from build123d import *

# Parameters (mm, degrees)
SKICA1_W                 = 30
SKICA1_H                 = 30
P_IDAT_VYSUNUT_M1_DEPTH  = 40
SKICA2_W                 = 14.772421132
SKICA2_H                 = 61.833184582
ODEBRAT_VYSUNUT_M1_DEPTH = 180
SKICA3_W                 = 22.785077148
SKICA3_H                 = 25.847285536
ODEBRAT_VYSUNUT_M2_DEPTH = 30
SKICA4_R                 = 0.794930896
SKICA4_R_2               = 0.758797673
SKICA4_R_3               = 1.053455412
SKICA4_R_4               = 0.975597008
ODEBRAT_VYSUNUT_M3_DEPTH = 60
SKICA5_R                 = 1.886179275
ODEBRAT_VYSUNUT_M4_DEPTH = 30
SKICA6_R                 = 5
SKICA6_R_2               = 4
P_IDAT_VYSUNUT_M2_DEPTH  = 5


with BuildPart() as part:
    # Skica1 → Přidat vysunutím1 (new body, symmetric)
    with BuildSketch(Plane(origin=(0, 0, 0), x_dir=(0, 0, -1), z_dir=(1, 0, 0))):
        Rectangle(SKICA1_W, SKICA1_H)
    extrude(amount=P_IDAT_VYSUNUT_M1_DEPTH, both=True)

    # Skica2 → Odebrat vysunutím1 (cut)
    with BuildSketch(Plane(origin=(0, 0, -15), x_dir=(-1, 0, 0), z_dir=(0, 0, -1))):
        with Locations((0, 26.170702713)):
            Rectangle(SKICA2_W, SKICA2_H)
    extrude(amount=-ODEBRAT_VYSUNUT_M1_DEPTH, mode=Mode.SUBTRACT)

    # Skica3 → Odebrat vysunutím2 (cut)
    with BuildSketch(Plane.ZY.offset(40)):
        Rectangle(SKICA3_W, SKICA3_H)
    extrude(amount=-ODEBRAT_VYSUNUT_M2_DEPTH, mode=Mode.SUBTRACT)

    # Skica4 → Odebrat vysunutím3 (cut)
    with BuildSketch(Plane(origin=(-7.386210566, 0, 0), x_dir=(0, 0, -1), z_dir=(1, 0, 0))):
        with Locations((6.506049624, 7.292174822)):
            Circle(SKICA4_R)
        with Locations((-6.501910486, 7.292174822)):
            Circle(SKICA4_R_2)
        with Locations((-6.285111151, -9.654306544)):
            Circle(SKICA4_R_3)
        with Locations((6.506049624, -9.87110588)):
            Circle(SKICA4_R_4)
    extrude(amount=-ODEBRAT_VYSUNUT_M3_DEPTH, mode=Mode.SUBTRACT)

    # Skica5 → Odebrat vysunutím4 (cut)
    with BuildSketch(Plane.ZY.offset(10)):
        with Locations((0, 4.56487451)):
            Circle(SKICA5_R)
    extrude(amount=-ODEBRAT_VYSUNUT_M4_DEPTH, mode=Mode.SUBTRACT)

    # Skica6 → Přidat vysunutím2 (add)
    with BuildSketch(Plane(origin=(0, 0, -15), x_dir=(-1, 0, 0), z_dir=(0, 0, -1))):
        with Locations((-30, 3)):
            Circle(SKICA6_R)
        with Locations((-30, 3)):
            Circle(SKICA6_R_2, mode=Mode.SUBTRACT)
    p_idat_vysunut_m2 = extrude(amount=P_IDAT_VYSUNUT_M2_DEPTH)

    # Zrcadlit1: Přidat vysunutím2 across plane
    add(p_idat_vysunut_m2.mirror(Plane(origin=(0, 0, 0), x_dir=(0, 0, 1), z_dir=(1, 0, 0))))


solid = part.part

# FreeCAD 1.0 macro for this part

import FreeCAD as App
import Part
import Sketcher

V = App.Vector
Q = App.Units.Quantity

doc = App.newDocument("Part")
body = doc.addObject("PartDesign::Body", "Body")

# Sketch on YZ plane
sketch1 = doc.addObject("Sketcher::SketchObject", "Sketch")
body.addObject(sketch1)
sketch1.AttachmentSupport = (doc.YZ_Plane, [""])
sketch1.MapMode = "FlatFace"
sketch1.addGeometry([
    Part.LineSegment(V(15, 15, 0), V(-15, 15, 0)),
    Part.LineSegment(V(-15, 15, 0), V(-15, -15, 0)),
    Part.LineSegment(V(-15, -15, 0), V(15, -15, 0)),
    Part.LineSegment(V(15, -15, 0), V(15, 15, 0)),
], False)
sketch1.addConstraint([
    Sketcher.Constraint("Coincident", 0, 2, 1, 1),
    Sketcher.Constraint("Coincident", 1, 2, 2, 1),
    Sketcher.Constraint("Coincident", 2, 2, 3, 1),
    Sketcher.Constraint("Coincident", 3, 2, 0, 1),
    Sketcher.Constraint("Horizontal", 0),
    Sketcher.Constraint("Vertical", 1),
    Sketcher.Constraint("Horizontal", 2),
    Sketcher.Constraint("Vertical", 3),
    Sketcher.Constraint("Symmetric", 0, 2, 2, 2, -1, 1),
    Sketcher.Constraint("Equal", 2, 1),
    Sketcher.Constraint("DistanceX", 0, 2, 0, 1, Q("30 mm")),
])
pad1 = doc.addObject("PartDesign::Pad", "Pad")
body.addObject(pad1)
pad1.Profile = sketch1
pad1.Length = 80
pad1.Midplane = True

# Sketch on XY plane
sketch2 = doc.addObject("Sketcher::SketchObject", "Sketch001")
body.addObject(sketch2)
sketch2.AttachmentSupport = (doc.XY_Plane, [""])
sketch2.MapMode = "FlatFace"
sketch2.AttachmentOffset = App.Placement(V(0, 0, -15), App.Rotation())
sketch2.addGeometry([
    Part.LineSegment(V(7.386211, 57.087295, 0), V(7.386211, -4.74589, 0)),
    Part.LineSegment(V(7.386211, -4.74589, 0), V(-7.386211, -4.74589, 0)),
    Part.LineSegment(V(-7.386211, -4.74589, 0), V(-7.386211, 57.087295, 0)),
    Part.LineSegment(V(-7.386211, 57.087295, 0), V(7.386211, 57.087295, 0)),
], False)
sketch2.addConstraint([
    Sketcher.Constraint("Coincident", 0, 2, 1, 1),
    Sketcher.Constraint("Coincident", 1, 2, 2, 1),
    Sketcher.Constraint("Coincident", 2, 2, 3, 1),
    Sketcher.Constraint("Coincident", 3, 2, 0, 1),
    Sketcher.Constraint("Vertical", 0),
    Sketcher.Constraint("Horizontal", 1),
    Sketcher.Constraint("Vertical", 2),
    Sketcher.Constraint("Horizontal", 3),
    Sketcher.Constraint("DistanceX", 1, 2, 1, 1, Q("14.772421 mm")),
    Sketcher.Constraint("DistanceY", 0, 2, 0, 1, Q("61.833185 mm")),
    Sketcher.Constraint("DistanceX", -1, 1, 0, 2, Q("7.386211 mm")),
    Sketcher.Constraint("DistanceY", 0, 2, -1, 1, Q("4.74589 mm")),
])
pocket1 = doc.addObject("PartDesign::Pocket", "Pocket")
body.addObject(pocket1)
pocket1.Profile = sketch2
pocket1.Length = 180
pocket1.Reversed = True

# Sketch on YZ plane
sketch3 = doc.addObject("Sketcher::SketchObject", "Sketch002")
body.addObject(sketch3)
sketch3.AttachmentSupport = (doc.YZ_Plane, [""])
sketch3.MapMode = "FlatFace"
sketch3.AttachmentOffset = App.Placement(V(0, 0, -40), App.Rotation())
sketch3.addGeometry([
    Part.LineSegment(V(12.923643, -11.392539, 0), V(-12.923643, -11.392539, 0)),
    Part.LineSegment(V(-12.923643, -11.392539, 0), V(-12.923643, 11.392539, 0)),
    Part.LineSegment(V(-12.923643, 11.392539, 0), V(12.923643, 11.392539, 0)),
    Part.LineSegment(V(12.923643, 11.392539, 0), V(12.923643, -11.392539, 0)),
], False)
sketch3.addConstraint([
    Sketcher.Constraint("Coincident", 0, 2, 1, 1),
    Sketcher.Constraint("Coincident", 1, 2, 2, 1),
    Sketcher.Constraint("Coincident", 2, 2, 3, 1),
    Sketcher.Constraint("Coincident", 3, 2, 0, 1),
    Sketcher.Constraint("Horizontal", 0),
    Sketcher.Constraint("Vertical", 1),
    Sketcher.Constraint("Horizontal", 2),
    Sketcher.Constraint("Vertical", 3),
    Sketcher.Constraint("Symmetric", 0, 2, 2, 2, -1, 1),
    Sketcher.Constraint("DistanceX", 0, 2, 0, 1, Q("25.847286 mm")),
    Sketcher.Constraint("DistanceY", 1, 1, 1, 2, Q("22.785077 mm")),
])
pocket2 = doc.addObject("PartDesign::Pocket", "Pocket001")
body.addObject(pocket2)
pocket2.Profile = sketch3
pocket2.Length = 30
pocket2.Reversed = True

# Sketch on YZ plane
sketch4 = doc.addObject("Sketcher::SketchObject", "Sketch003")
body.addObject(sketch4)
sketch4.AttachmentSupport = (doc.YZ_Plane, [""])
sketch4.MapMode = "FlatFace"
sketch4.AttachmentOffset = App.Placement(V(0, 0, -7.386211), App.Rotation())
sketch4.addGeometry([
    Part.Circle(V(7.292175, -6.50605, 0), V(0, 0, 1), 0.794931),
    Part.Circle(V(7.292175, 6.50191, 0), V(0, 0, 1), 0.758798),
    Part.Circle(V(-9.654307, 6.285111, 0), V(0, 0, 1), 1.053455),
    Part.Circle(V(-9.871106, -6.50605, 0), V(0, 0, 1), 0.975597),
], False)
sketch4.addConstraint([
    Sketcher.Constraint("Horizontal", 0, 3, 3, 3),
    Sketcher.Constraint("Vertical", 0, 3, 1, 3),
    Sketcher.Constraint("Diameter", 0, Q("1.589862 mm")),
    Sketcher.Constraint("Diameter", 2, Q("2.106911 mm")),
    Sketcher.Constraint("Diameter", 1, Q("1.517595 mm")),
    Sketcher.Constraint("Diameter", 3, Q("1.951194 mm")),
    Sketcher.Constraint("DistanceY", 2, 3, 1, 3, Q("0.216799 mm")),
    Sketcher.Constraint("DistanceX", 3, 3, 2, 3, Q("0.216799 mm")),
    Sketcher.Constraint("DistanceY", 0, 3, -1, 1, Q("6.50605 mm")),
    Sketcher.Constraint("DistanceY", -1, 1, 1, 3, Q("6.50191 mm")),
    Sketcher.Constraint("DistanceX", 2, 3, 1, 3, Q("16.946481 mm")),
    Sketcher.Constraint("DistanceX", -1, 1, 0, 3, Q("7.292175 mm")),
])
pocket3 = doc.addObject("PartDesign::Pocket", "Pocket002")
body.addObject(pocket3)
pocket3.Profile = sketch4
pocket3.Length = 60

# Sketch on YZ plane
sketch5 = doc.addObject("Sketcher::SketchObject", "Sketch004")
body.addObject(sketch5)
sketch5.AttachmentSupport = (doc.YZ_Plane, [""])
sketch5.MapMode = "FlatFace"
sketch5.AttachmentOffset = App.Placement(V(0, 0, -10), App.Rotation())
sketch5.addGeometry(Part.Circle(V(4.564875, 0, 0), V(0, 0, 1), 1.886179), False)
sketch5.addConstraint([
    Sketcher.Constraint("PointOnObject", 0, 3, -1),
    Sketcher.Constraint("Diameter", 0, Q("3.772359 mm")),
    Sketcher.Constraint("DistanceX", -1, 1, 0, 3, Q("4.564875 mm")),
])
pocket4 = doc.addObject("PartDesign::Pocket", "Pocket003")
body.addObject(pocket4)
pocket4.Profile = sketch5
pocket4.Length = 30
pocket4.Reversed = True

# Sketch on XY plane
sketch6 = doc.addObject("Sketcher::SketchObject", "Sketch005")
body.addObject(sketch6)
sketch6.AttachmentSupport = (doc.XY_Plane, [""])
sketch6.MapMode = "FlatFace"
sketch6.AttachmentOffset = App.Placement(V(0, 0, -15), App.Rotation())
sketch6.addGeometry([
    Part.Circle(V(30, 3, 0), V(0, 0, 1), 5),
    Part.Circle(V(30, 3, 0), V(0, 0, 1), 4),
], False)
sketch6.addConstraint([
    Sketcher.Constraint("Coincident", 1, 3, 0, 3),
    Sketcher.Constraint("Diameter", 0, Q("10 mm")),
    Sketcher.Constraint("Diameter", 1, Q("8 mm")),
    Sketcher.Constraint("DistanceX", -1, 1, 0, 3, Q("30 mm")),
    Sketcher.Constraint("DistanceY", -1, 1, 0, 3, Q("3 mm")),
])
pad2 = doc.addObject("PartDesign::Pad", "Pad001")
body.addObject(pad2)
pad2.Profile = sketch6
pad2.Length = 5
pad2.Reversed = True
doc.recompute()

mirrored = doc.addObject("PartDesign::Mirrored", "Mirrored")
body.addObject(mirrored)
mirrored.Originals = [pad2]
mirrored.MirrorPlane = (doc.YZ_Plane, [""])
body.Tip = mirrored

doc.recompute()
